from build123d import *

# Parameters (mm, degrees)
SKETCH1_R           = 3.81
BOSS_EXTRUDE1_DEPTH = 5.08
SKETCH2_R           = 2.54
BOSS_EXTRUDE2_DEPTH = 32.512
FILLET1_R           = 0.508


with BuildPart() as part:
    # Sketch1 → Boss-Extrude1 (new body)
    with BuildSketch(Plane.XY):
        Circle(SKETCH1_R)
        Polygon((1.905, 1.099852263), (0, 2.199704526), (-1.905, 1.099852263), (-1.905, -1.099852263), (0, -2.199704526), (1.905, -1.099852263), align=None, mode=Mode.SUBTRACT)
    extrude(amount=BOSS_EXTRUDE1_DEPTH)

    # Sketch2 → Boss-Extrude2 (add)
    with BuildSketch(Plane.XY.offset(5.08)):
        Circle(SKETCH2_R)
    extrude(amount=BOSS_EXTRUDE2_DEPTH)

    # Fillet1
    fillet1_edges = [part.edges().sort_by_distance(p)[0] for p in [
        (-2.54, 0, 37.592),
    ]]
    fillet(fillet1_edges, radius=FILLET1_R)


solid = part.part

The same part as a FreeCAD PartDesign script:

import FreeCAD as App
import Part
import Sketcher

V = App.Vector
Q = App.Units.Quantity


def edges_at(feature, points):
    """Names of the edges that pass closest to the given points."""
    edges = feature.Shape.Edges
    near = lambda p: min(range(len(edges)), key=lambda i: edges[i].distToShape(Part.Vertex(*p))[0])
    return sorted({f"Edge{near(p) + 1}" for p in points})

doc = App.newDocument("Part")
body = doc.addObject("PartDesign::Body", "Body")

sketch1 = body.newObject("Sketcher::SketchObject", "Sketch")
sketch1.AttachmentSupport = (doc.getObject("XY_Plane"), [""])
sketch1.MapMode = "FlatFace"
sketch1.addGeometry([
    Part.Circle(V(0, 0, 0), V(0, 0, 1), 3.8),
    Part.LineSegment(V(0, 2.2, 0), V(1.9, 1.1, 0)),
    Part.LineSegment(V(1.9, 1.1, 0), V(1.9, -1.1, 0)),
    Part.LineSegment(V(1.9, -1.1, 0), V(0, -2.2, 0)),
    Part.LineSegment(V(0, -2.2, 0), V(-1.9, -1.1, 0)),
    Part.LineSegment(V(-1.9, -1.1, 0), V(-1.9, 1.1, 0)),
    Part.LineSegment(V(-1.9, 1.1, 0), V(0, 2.2, 0)),
], False)
sketch1.addConstraint([
    Sketcher.Constraint("Coincident", 1, 2, 2, 1),
    Sketcher.Constraint("Coincident", 2, 2, 3, 1),
    Sketcher.Constraint("Coincident", 3, 2, 4, 1),
    Sketcher.Constraint("Coincident", 4, 2, 5, 1),
    Sketcher.Constraint("Coincident", 5, 2, 6, 1),
    Sketcher.Constraint("Coincident", 6, 2, 1, 1),
    Sketcher.Constraint("Vertical", 2),
    Sketcher.Constraint("Vertical", 5),
    Sketcher.Constraint("Coincident", 0, 3, -1, 1),
    Sketcher.Constraint("Symmetric", 1, 2, 4, 2, -1, 1),
    Sketcher.Constraint("Symmetric", 3, 2, 6, 2, -1, 1),
    Sketcher.Constraint("PointOnObject", 3, 2, -2),
    Sketcher.Constraint("Parallel", 3, 6),
    Sketcher.Constraint("Horizontal", 2, 2, 4, 2),
    Sketcher.Constraint("Diameter", 0, Q("0.3 in")),
    Sketcher.Constraint("Angle", 1, Q("-30 deg")),
    Sketcher.Constraint("DistanceX", 4, 2, 2, 2, Q("0.15 in")),
    Sketcher.Constraint("DistanceY", 2, 2, 2, 1, Q("2.199705 mm")),
])
pad1 = body.newObject("PartDesign::Pad", "Pad")
pad1.Profile = sketch1
pad1.Length = Q("0.2 in")

sketch2 = body.newObject("Sketcher::SketchObject", "Sketch001")
sketch2.AttachmentSupport = (doc.getObject("XY_Plane"), [""])
sketch2.MapMode = "FlatFace"
sketch2.AttachmentOffset = App.Placement(V(0, 0, 0.2 * 25.4), App.Rotation())
sketch2.addGeometry(Part.Circle(V(0, 0, 0), V(0, 0, 1), 2.5), False)
sketch2.addConstraint([
    Sketcher.Constraint("Coincident", 0, 3, -1, 1),
    Sketcher.Constraint("Diameter", 0, Q("0.2 in")),
])
pad2 = body.newObject("PartDesign::Pad", "Pad001")
pad2.Profile = sketch2
pad2.Length = Q("1.28 in")
doc.recompute()

fillet = body.newObject("PartDesign::Fillet", "Fillet")
fillet.Base = (pad2, edges_at(pad2, [(-2.54, 0, 37.592)]))
fillet.Radius = Q("0.02 in")

doc.recompute()
